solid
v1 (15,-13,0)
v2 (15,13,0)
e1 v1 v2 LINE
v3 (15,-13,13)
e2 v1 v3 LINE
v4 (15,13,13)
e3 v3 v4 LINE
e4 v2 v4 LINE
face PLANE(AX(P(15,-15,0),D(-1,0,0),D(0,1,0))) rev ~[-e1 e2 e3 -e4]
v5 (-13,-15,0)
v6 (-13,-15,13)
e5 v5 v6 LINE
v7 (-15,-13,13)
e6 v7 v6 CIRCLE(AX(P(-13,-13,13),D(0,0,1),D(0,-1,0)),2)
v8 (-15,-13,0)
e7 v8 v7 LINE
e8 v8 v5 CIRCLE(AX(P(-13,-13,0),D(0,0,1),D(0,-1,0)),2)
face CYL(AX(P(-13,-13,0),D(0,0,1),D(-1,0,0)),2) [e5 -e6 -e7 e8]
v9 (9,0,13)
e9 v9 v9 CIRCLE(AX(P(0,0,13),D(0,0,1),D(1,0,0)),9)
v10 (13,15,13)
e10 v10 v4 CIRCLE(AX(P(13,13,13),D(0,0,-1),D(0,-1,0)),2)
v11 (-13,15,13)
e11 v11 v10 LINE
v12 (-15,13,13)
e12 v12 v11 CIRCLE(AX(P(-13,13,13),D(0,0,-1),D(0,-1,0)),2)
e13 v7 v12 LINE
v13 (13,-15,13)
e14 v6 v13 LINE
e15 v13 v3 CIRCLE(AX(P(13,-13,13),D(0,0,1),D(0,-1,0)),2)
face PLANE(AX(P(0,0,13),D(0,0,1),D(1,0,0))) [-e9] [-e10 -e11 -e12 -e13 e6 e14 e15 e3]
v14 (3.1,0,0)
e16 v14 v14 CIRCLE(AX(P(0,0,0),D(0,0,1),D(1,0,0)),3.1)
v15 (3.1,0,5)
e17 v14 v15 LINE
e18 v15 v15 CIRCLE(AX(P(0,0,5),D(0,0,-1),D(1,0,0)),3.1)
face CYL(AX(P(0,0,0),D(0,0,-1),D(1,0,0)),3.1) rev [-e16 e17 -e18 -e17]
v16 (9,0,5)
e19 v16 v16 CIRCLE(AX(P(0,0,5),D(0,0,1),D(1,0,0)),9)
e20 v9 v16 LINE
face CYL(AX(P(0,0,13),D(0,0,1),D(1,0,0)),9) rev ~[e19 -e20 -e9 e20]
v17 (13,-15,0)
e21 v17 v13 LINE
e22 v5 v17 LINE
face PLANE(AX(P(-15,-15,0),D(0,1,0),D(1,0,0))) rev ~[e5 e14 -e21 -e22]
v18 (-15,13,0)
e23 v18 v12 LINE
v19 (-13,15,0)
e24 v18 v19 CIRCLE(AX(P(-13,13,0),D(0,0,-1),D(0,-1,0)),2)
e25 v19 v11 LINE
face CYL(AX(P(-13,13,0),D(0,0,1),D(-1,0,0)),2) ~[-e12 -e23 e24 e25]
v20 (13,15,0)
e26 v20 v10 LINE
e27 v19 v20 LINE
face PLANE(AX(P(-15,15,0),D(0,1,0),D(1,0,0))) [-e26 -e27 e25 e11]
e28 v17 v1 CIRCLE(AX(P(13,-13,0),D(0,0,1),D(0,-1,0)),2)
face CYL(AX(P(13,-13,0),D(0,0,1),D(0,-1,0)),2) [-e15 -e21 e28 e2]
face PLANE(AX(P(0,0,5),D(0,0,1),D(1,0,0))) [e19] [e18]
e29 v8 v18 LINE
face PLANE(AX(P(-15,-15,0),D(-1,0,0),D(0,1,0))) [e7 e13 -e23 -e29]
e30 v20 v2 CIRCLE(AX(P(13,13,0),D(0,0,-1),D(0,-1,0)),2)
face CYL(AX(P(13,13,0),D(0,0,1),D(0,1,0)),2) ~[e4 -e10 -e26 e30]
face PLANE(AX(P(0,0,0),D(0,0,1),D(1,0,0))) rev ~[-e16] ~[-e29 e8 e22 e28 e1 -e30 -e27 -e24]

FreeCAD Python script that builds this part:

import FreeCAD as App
import Part
import Sketcher

V = App.Vector
Q = App.Units.Quantity


def edges_at(feature, points):
    """Names of the edges that pass closest to the given points."""
    edges = feature.Shape.Edges
    near = lambda p: min(range(len(edges)), key=lambda i: edges[i].distToShape(Part.Vertex(*p))[0])
    return sorted({f"Edge{near(p) + 1}" for p in points})

doc = App.newDocument("Part")
params = doc.addObject("Spreadsheet::Sheet", "Params")
for row, (alias, value) in enumerate([
    ("sketch1_diameter", "6.2 mm"),
    ("sketch1_width", "30 mm"),
    ("pad1_length", "13 mm"),
    ("sketch2_diameter", "18 mm"),
    ("pocket1_length", "8 mm"),
    ("fillet_radius", "2 mm"),
], start=1):
    params.set(f"A{row}", alias)
    params.set(f"B{row}", "=" + value)
    params.setAlias(f"B{row}", alias)

body = doc.addObject("PartDesign::Body", "Body")

# Sketch on XY plane
sketch1 = doc.addObject("Sketcher::SketchObject", "Sketch")
body.addObject(sketch1)
sketch1.AttachmentSupport = (doc.XY_Plane, [""])
sketch1.MapMode = "FlatFace"
sketch1.addGeometry([
    Part.LineSegment(V(-15, 15, 0), V(-15, -15, 0)),  # 0
    Part.LineSegment(V(-15, -15, 0), V(15, -15, 0)),  # 1
    Part.LineSegment(V(15, -15, 0), V(15, 15, 0)),  # 2
    Part.LineSegment(V(15, 15, 0), V(-15, 15, 0)),  # 3
    Part.Circle(V(0, 0, 0), V(0, 0, 1), 3.1),  # 4
], False)
sketch1.addConstraint([
    Sketcher.Constraint("Coincident", 0, 2, 1, 1),
    Sketcher.Constraint("Coincident", 1, 2, 2, 1),
    Sketcher.Constraint("Coincident", 2, 2, 3, 1),
    Sketcher.Constraint("Coincident", 3, 2, 0, 1),
    Sketcher.Constraint("Vertical", 0),
    Sketcher.Constraint("Horizontal", 1),
    Sketcher.Constraint("Vertical", 2),
    Sketcher.Constraint("Horizontal", 3),
    Sketcher.Constraint("Coincident", 4, 3, -1, 1),
    Sketcher.Constraint("Symmetric", 0, 2, 2, 2, -1, 1),
    Sketcher.Constraint("Equal", 3, 0),
    Sketcher.Constraint("Diameter", 4, Q("6.2 mm")),
    Sketcher.Constraint("DistanceX", 1, 1, 1, 2, Q("30 mm")),
])
sketch1.setExpression("Constraints[11]", "Params.sketch1_diameter")
sketch1.setExpression("Constraints[12]", "Params.sketch1_width")
pad1 = doc.addObject("PartDesign::Pad", "Pad")
body.addObject(pad1)
pad1.Profile = sketch1
pad1.setExpression("Length", "Params.pad1_length")

# Sketch on XY plane
sketch2 = doc.addObject("Sketcher::SketchObject", "Sketch001")
body.addObject(sketch2)
sketch2.AttachmentSupport = (doc.XY_Plane, [""])
sketch2.MapMode = "FlatFace"
sketch2.AttachmentOffset = App.Placement(V(0, 0, 13), App.Rotation())
sketch2.addGeometry(Part.Circle(V(0, 0, 0), V(0, 0, 1), 9), False)
sketch2.addConstraint([
    Sketcher.Constraint("Coincident", 0, 3, -1, 1),
    Sketcher.Constraint("Diameter", 0, Q("18 mm")),
])
sketch2.setExpression("Constraints[1]", "Params.sketch2_diameter")
pocket1 = doc.addObject("PartDesign::Pocket", "Pocket")
body.addObject(pocket1)
pocket1.Profile = sketch2
pocket1.setExpression("Length", "Params.pocket1_length")
doc.recompute()

fillet = doc.addObject("PartDesign::Fillet", "Fillet")
body.addObject(fillet)
fillet.Base = (pocket1, edges_at(pocket1, [
    (15, -15, 6.5),
    (-15, -15, 6.5),
    (-15, 15, 6.5),
    (15, 15, 6.5),
]))
fillet.setExpression("Radius", "Params.fillet_radius")

doc.recompute()
